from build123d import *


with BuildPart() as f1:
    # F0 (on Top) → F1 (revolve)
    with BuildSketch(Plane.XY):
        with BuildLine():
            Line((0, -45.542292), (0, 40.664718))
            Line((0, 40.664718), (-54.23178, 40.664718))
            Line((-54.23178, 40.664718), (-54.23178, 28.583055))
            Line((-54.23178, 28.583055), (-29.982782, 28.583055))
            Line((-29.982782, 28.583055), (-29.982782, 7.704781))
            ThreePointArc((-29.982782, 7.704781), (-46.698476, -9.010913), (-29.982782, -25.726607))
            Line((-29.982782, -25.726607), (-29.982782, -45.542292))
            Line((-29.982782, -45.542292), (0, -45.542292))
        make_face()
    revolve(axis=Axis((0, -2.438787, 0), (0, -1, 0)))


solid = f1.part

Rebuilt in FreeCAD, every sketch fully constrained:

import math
import FreeCAD as App
import Part
import Sketcher

V = App.Vector
Q = App.Units.Quantity

doc = App.newDocument("Part")
body = doc.addObject("PartDesign::Body", "Body")

sketch1 = body.newObject("Sketcher::SketchObject", "Sketch")
sketch1.AttachmentSupport = (doc.getObject("XY_Plane"), [""])
sketch1.MapMode = "FlatFace"
sketch1.addGeometry([
    Part.LineSegment(V(0, -46, 0), V(0, 41, 0)),
    Part.LineSegment(V(0, 41, 0), V(-54, 41, 0)),
    Part.LineSegment(V(-54, 41, 0), V(-54, 29, 0)),
    Part.LineSegment(V(-54, 29, 0), V(-30, 29, 0)),
    Part.LineSegment(V(-30, 29, 0), V(-30, 8, 0)),
    Part.ArcOfCircle(Part.Circle(V(-30, -9, 0), V(0, 0, 1), 17), math.radians(90), math.radians(270)),
    Part.LineSegment(V(-30, -26, 0), V(-30, -46, 0)),
    Part.LineSegment(V(-30, -46, 0), V(0, -46, 0)),
], False)
sketch1.addConstraint([
    Sketcher.Constraint("Coincident", 0, 2, 1, 1),
    Sketcher.Constraint("Coincident", 1, 2, 2, 1),
    Sketcher.Constraint("Coincident", 2, 2, 3, 1),
    Sketcher.Constraint("Coincident", 3, 2, 4, 1),
    Sketcher.Constraint("Coincident", 4, 2, 5, 1),
    Sketcher.Constraint("Coincident", 5, 2, 6, 1),
    Sketcher.Constraint("Coincident", 6, 2, 7, 1),
    Sketcher.Constraint("Coincident", 7, 2, 0, 1),
    Sketcher.Constraint("Vertical", 0),
    Sketcher.Constraint("Horizontal", 1),
    Sketcher.Constraint("Vertical", 2),
    Sketcher.Constraint("Horizontal", 3),
    Sketcher.Constraint("Vertical", 4),
    Sketcher.Constraint("Vertical", 6),
    Sketcher.Constraint("Horizontal", 7),
    Sketcher.Constraint("PointOnObject", 0, 2, -2),
    Sketcher.Constraint("Vertical", 5, 3, 3, 2),
    Sketcher.Constraint("Vertical", 4, 2, 5, 2),
    Sketcher.Constraint("DistanceX", 3, 1, 3, 2, Q("24.248998 mm")),
    Sketcher.Constraint("Radius", 5, Q("16.715694 mm")),
    Sketcher.Constraint("DistanceX", 1, 2, 1, 1, Q("54.23178 mm")),
    Sketcher.Constraint("DistanceY", 0, 1, 0, 2, Q("86.20701 mm")),
    Sketcher.Constraint("DistanceY", 2, 2, 2, 1, Q("12.081663 mm")),
    Sketcher.Constraint("DistanceY", 4, 2, 4, 1, Q("20.878274 mm")),
    Sketcher.Constraint("DistanceY", -1, 1, 4, 2, Q("7.704781 mm")),
])
revolution = body.newObject("PartDesign::Revolution", "Revolution")
revolution.Profile = sketch1
revolution.ReferenceAxis = (sketch1, ["V_Axis"])
revolution.Angle = 360

doc.recompute()
